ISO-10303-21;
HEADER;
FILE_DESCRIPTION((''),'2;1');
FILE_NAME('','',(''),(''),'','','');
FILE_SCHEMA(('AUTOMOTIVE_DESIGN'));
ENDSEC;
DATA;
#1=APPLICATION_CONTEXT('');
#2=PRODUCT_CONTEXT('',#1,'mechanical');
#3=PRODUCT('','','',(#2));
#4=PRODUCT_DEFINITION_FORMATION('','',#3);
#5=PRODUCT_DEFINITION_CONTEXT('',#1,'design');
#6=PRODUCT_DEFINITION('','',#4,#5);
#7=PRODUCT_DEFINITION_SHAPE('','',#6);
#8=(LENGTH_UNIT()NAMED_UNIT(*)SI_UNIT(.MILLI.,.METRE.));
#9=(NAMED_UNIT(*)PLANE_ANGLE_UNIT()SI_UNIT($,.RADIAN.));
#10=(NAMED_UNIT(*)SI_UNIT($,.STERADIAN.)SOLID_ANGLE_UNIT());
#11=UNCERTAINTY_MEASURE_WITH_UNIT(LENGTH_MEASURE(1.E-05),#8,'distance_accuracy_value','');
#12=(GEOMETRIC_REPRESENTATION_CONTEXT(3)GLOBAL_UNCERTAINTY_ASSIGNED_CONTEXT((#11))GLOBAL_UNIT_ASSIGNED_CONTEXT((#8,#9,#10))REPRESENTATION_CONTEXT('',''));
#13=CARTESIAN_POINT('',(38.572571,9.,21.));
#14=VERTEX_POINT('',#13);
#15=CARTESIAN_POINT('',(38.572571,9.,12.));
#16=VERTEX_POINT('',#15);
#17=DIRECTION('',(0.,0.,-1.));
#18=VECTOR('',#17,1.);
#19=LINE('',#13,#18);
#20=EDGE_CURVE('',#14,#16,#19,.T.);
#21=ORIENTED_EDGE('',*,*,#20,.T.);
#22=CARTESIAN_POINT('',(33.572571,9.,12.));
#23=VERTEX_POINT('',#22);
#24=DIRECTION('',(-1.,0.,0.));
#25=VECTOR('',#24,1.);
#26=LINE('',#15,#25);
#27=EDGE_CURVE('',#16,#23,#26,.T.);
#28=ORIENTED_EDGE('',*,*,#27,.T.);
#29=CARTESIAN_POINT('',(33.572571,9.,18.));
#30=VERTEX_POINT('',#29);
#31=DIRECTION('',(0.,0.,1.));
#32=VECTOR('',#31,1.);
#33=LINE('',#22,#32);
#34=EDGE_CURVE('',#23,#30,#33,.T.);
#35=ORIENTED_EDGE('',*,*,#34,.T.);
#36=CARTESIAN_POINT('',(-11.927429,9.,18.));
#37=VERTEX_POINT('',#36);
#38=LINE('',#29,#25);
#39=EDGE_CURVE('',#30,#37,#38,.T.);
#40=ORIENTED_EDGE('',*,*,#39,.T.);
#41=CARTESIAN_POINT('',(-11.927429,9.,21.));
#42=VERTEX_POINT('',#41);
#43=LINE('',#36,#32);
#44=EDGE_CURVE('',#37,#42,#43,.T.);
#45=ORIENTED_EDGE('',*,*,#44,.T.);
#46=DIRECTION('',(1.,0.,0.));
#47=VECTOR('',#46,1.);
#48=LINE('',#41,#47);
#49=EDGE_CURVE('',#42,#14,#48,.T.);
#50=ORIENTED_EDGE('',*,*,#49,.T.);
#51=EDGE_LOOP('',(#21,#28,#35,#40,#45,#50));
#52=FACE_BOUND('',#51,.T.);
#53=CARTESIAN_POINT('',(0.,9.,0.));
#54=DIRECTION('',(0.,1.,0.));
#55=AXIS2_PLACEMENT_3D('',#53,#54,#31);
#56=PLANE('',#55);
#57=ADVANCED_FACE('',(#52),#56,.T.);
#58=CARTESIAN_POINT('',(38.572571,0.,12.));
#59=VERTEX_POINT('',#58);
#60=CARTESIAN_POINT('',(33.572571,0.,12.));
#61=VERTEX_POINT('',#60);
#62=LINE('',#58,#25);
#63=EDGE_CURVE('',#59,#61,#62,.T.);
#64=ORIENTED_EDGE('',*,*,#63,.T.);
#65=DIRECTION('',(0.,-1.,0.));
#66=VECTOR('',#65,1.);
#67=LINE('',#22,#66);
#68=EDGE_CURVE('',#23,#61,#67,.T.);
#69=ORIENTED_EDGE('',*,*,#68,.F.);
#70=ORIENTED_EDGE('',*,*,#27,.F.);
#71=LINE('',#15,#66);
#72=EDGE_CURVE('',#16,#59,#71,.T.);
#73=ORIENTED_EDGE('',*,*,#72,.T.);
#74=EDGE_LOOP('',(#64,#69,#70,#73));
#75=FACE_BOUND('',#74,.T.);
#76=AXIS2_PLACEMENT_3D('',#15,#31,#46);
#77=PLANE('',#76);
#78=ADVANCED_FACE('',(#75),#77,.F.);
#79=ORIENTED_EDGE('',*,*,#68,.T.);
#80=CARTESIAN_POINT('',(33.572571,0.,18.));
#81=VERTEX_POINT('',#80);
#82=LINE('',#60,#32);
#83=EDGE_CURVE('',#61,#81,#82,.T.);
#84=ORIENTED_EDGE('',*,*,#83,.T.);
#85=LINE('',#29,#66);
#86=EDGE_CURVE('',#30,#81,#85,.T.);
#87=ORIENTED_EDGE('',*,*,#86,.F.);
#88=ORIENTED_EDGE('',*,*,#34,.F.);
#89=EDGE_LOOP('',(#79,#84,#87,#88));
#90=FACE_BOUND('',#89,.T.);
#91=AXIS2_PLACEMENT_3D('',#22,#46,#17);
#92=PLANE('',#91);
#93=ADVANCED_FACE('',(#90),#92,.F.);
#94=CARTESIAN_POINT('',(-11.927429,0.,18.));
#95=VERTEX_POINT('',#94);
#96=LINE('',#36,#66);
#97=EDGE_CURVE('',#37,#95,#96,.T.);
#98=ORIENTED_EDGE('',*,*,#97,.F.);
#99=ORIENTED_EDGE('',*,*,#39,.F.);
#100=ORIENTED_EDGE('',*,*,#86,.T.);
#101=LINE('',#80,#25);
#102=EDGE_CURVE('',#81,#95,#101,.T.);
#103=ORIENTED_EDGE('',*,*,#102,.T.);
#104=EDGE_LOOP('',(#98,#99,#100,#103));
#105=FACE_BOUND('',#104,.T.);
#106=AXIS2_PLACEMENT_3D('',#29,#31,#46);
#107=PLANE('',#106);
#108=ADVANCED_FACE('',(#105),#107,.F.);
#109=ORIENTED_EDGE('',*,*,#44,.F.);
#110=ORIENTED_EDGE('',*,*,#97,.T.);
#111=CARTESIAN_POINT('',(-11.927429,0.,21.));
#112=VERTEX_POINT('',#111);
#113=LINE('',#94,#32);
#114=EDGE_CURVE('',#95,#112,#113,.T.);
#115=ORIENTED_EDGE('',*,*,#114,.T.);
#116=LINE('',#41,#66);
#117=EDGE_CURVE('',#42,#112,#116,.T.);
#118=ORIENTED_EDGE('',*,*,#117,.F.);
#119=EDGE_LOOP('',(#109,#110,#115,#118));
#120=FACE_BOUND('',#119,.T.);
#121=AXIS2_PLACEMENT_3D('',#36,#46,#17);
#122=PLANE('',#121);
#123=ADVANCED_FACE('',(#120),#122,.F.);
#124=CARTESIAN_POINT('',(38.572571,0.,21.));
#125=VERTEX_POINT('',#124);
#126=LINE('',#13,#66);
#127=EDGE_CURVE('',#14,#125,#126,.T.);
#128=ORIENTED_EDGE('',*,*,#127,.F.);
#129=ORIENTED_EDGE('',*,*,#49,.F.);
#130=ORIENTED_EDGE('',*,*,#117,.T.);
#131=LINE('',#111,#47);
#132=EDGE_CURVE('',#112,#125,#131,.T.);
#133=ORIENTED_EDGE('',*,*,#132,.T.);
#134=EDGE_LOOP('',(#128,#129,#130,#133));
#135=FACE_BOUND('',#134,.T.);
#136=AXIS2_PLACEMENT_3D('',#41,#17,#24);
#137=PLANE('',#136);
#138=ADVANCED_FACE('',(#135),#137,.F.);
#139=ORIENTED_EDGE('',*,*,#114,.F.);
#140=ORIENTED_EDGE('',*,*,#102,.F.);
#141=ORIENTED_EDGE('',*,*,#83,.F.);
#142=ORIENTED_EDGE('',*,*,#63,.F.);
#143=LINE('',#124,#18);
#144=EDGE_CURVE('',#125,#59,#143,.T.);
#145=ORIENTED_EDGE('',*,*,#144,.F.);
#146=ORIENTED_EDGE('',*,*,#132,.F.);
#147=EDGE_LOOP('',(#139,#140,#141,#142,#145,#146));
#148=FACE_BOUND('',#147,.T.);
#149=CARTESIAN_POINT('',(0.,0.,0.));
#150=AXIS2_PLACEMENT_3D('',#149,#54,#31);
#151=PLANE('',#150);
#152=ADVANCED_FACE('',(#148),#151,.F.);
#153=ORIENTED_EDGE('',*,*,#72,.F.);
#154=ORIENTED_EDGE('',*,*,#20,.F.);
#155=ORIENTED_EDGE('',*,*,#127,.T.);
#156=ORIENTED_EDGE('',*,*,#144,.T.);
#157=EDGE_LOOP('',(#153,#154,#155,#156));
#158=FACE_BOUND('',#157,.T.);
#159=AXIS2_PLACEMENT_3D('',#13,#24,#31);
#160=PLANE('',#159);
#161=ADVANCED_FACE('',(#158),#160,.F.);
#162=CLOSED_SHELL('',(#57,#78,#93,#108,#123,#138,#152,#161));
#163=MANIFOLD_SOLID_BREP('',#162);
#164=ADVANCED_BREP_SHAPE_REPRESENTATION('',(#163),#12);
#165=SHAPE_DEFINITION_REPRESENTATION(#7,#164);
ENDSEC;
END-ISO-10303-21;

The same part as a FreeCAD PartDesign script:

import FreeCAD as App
import Part
import Sketcher
Q = App.Units.Quantity


def add_polygon(sketch, points):
    """Adds a closed chain of lines whose ends are joined by coincident constraints."""
    first, n = sketch.GeometryCount, len(points)
    for a, b in zip(points, points[1:] + points[:1]):
        sketch.addGeometry(Part.LineSegment(App.Vector(*a, 0), App.Vector(*b, 0)), False)
    for i in range(n):
        sketch.addConstraint(Sketcher.Constraint("Coincident", first + i, 2, first + (i + 1) % n, 1))

doc = App.newDocument("Part")
body = doc.addObject("PartDesign::Body", "Body")

sketch1 = doc.addObject("Sketcher::SketchObject", "Sketch")
body.addObject(sketch1)
sketch1.AttachmentSupport = (doc.XZ_Plane, [""])
sketch1.MapMode = "FlatFace"
add_polygon(sketch1, [(38.6, 21), (38.6, 12), (33.6, 12), (33.6, 18), (-11.9, 18), (-11.9, 21)])
sketch1.addConstraint(Sketcher.Constraint("Vertical", 0))
sketch1.addConstraint(Sketcher.Constraint("Horizontal", 1))
sketch1.addConstraint(Sketcher.Constraint("Vertical", 2))
sketch1.addConstraint(Sketcher.Constraint("Horizontal", 3))
sketch1.addConstraint(Sketcher.Constraint("Vertical", 4))
sketch1.addConstraint(Sketcher.Constraint("Horizontal", 5))
sketch1.addConstraint(Sketcher.Constraint("DistanceX", 1, 2, 1, 1, Q("5 mm")))
sketch1.addConstraint(Sketcher.Constraint("DistanceY", 0, 2, 0, 1, Q("9 mm")))
sketch1.addConstraint(Sketcher.Constraint("DistanceY", 2, 1, 2, 2, Q("6 mm")))
sketch1.addConstraint(Sketcher.Constraint("DistanceX", 3, 2, 3, 1, Q("45.5 mm")))
sketch1.addConstraint(Sketcher.Constraint("DistanceY", -1, 1, 0, 2, Q("12 mm")))
sketch1.addConstraint(Sketcher.Constraint("DistanceX", -1, 1, 0, 2, Q("38.572571 mm")))
pad1 = doc.addObject("PartDesign::Pad", "Pad")
body.addObject(pad1)
pad1.Profile = sketch1
pad1.Length = 9
pad1.Reversed = True

doc.recompute()
